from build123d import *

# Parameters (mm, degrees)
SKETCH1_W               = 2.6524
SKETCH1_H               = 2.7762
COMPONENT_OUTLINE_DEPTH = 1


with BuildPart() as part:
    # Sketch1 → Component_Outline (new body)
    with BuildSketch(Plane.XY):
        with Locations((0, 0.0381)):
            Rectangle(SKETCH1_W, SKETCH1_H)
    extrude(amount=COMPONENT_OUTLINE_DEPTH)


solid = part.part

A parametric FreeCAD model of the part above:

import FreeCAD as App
import Part
import Sketcher

V = App.Vector
Q = App.Units.Quantity

doc = App.newDocument("Part")
params = doc.addObject("Spreadsheet::Sheet", "Params")
for row, (alias, value) in enumerate([
    ("pad1_length", "1 mm"),
], start=1):
    params.set(f"A{row}", alias)
    params.set(f"B{row}", "=" + value)
    params.setAlias(f"B{row}", alias)

body = doc.addObject("PartDesign::Body", "Body")

# Sketch on XY plane
sketch1 = body.newObject("Sketcher::SketchObject", "Sketch")
sketch1.AttachmentSupport = (doc.getObject("XY_Plane"), [""])
sketch1.MapMode = "FlatFace"
sketch1.addGeometry([
    Part.LineSegment(V(-1.3262, 1.4262, 0), V(-1.3262, -1.35, 0)),
    Part.LineSegment(V(-1.3262, -1.35, 0), V(1.3262, -1.35, 0)),
    Part.LineSegment(V(1.3262, -1.35, 0), V(1.3262, 1.4262, 0)),
    Part.LineSegment(V(1.3262, 1.4262, 0), V(-1.3262, 1.4262, 0)),
], False)
sketch1.addConstraint([
    Sketcher.Constraint("Coincident", 0, 2, 1, 1),
    Sketcher.Constraint("Coincident", 1, 2, 2, 1),
    Sketcher.Constraint("Coincident", 2, 2, 3, 1),
    Sketcher.Constraint("Coincident", 3, 2, 0, 1),
    Sketcher.Constraint("Vertical", 0),
    Sketcher.Constraint("Horizontal", 1),
    Sketcher.Constraint("Vertical", 2),
    Sketcher.Constraint("Horizontal", 3),
    Sketcher.Constraint("DistanceY", 0, 2, -1, 1, Q("1.35 mm")),
    Sketcher.Constraint("DistanceX", 1, 1, 1, 2, Q("2.6524 mm")),
    Sketcher.Constraint("DistanceY", 0, 2, 0, 1, Q("2.7762 mm")),
    Sketcher.Constraint("DistanceX", 0, 2, -1, 1, Q("1.3262 mm")),
])
pad1 = body.newObject("PartDesign::Pad", "Pad")
pad1.Profile = sketch1
pad1.setExpression("Length", "Params.pad1_length")

doc.recompute()
